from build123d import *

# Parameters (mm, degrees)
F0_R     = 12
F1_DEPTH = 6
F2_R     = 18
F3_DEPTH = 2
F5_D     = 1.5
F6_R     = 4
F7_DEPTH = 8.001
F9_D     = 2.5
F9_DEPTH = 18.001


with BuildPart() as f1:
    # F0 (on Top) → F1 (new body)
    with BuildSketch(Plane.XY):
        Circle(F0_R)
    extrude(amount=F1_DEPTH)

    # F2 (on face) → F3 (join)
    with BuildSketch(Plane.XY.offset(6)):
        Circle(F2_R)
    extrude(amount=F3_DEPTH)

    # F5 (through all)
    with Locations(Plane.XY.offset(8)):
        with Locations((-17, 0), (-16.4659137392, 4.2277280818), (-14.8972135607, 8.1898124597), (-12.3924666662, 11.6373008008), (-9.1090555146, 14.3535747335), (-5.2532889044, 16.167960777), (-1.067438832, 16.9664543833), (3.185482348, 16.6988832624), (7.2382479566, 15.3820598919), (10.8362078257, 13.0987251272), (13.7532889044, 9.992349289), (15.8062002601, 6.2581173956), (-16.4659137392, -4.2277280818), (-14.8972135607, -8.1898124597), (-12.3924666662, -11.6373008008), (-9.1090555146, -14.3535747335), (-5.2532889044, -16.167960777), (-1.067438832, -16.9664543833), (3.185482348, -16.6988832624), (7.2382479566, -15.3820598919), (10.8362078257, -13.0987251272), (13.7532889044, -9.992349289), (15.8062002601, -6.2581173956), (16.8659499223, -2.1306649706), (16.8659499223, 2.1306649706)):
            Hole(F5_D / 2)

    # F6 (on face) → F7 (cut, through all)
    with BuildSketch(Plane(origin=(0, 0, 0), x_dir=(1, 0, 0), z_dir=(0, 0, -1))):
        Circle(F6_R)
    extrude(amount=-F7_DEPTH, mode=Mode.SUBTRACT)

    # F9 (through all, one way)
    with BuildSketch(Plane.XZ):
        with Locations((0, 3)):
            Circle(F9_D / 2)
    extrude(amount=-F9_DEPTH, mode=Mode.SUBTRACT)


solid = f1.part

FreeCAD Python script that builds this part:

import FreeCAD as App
import Part
import Sketcher

V = App.Vector
Q = App.Units.Quantity

doc = App.newDocument("Part")
params = doc.addObject("Spreadsheet::Sheet", "Params")
for row, (alias, value) in enumerate([
    ("sketch1_diameter", "24 mm"),
    ("pad1_length", "6 mm"),
    ("sketch2_diameter", "36 mm"),
    ("pad2_length", "2 mm"),
    ("sketch3_diameter", "1.5 mm"),
    ("hole_diameter", "1.5 mm"),
    ("sketch4_diameter", "8 mm"),
    ("sketch5_diameter", "2.5 mm"),
], start=1):
    params.set(f"A{row}", alias)
    params.set(f"B{row}", "=" + value)
    params.setAlias(f"B{row}", alias)

body = doc.addObject("PartDesign::Body", "Body")

sketch1 = body.newObject("Sketcher::SketchObject", "Sketch")
sketch1.AttachmentSupport = (doc.getObject("XY_Plane"), [""])
sketch1.MapMode = "FlatFace"
sketch1.addGeometry(Part.Circle(V(0, 0, 0), V(0, 0, 1), 12), False)
sketch1.addConstraint([
    Sketcher.Constraint("Coincident", 0, 3, -1, 1),
    Sketcher.Constraint("Diameter", 0, Q("24 mm")),
])
sketch1.setExpression("Constraints[1]", "Params.sketch1_diameter")
pad1 = body.newObject("PartDesign::Pad", "Pad")
pad1.Profile = sketch1
pad1.setExpression("Length", "Params.pad1_length")

sketch2 = body.newObject("Sketcher::SketchObject", "Sketch001")
sketch2.AttachmentSupport = (doc.getObject("XY_Plane"), [""])
sketch2.MapMode = "FlatFace"
sketch2.AttachmentOffset = App.Placement(V(0, 0, 6), App.Rotation())
sketch2.addGeometry(Part.Circle(V(0, 0, 0), V(0, 0, 1), 18), False)
sketch2.addConstraint([
    Sketcher.Constraint("Coincident", 0, 3, -1, 1),
    Sketcher.Constraint("Diameter", 0, Q("36 mm")),
])
sketch2.setExpression("Constraints[1]", "Params.sketch2_diameter")
pad2 = body.newObject("PartDesign::Pad", "Pad001")
pad2.Profile = sketch2
pad2.setExpression("Length", "Params.pad2_length")

sketch3 = body.newObject("Sketcher::SketchObject", "Sketch002")
sketch3.AttachmentSupport = (doc.getObject("XY_Plane"), [""])
sketch3.MapMode = "FlatFace"
sketch3.AttachmentOffset = App.Placement(V(0, 0, 8), App.Rotation())
sketch3.addGeometry([
    Part.Circle(V(-17, 0, 0), V(0, 0, 1), 0.75),
    Part.Circle(V(-16.465914, 4.227728, 0), V(0, 0, 1), 0.75),
    Part.Circle(V(-14.897214, 8.189812, 0), V(0, 0, 1), 0.75),
    Part.Circle(V(-12.392467, 11.637301, 0), V(0, 0, 1), 0.75),
    Part.Circle(V(-9.109056, 14.353575, 0), V(0, 0, 1), 0.75),
    Part.Circle(V(-5.253289, 16.167961, 0), V(0, 0, 1), 0.75),
    Part.Circle(V(-1.067439, 16.966454, 0), V(0, 0, 1), 0.75),
    Part.Circle(V(3.185482, 16.698883, 0), V(0, 0, 1), 0.75),
    Part.Circle(V(7.238248, 15.38206, 0), V(0, 0, 1), 0.75),
    Part.Circle(V(10.836208, 13.098725, 0), V(0, 0, 1), 0.75),
    Part.Circle(V(13.753289, 9.992349, 0), V(0, 0, 1), 0.75),
    Part.Circle(V(15.8062, 6.258117, 0), V(0, 0, 1), 0.75),
    Part.Circle(V(-16.465914, -4.227728, 0), V(0, 0, 1), 0.75),
    Part.Circle(V(-14.897214, -8.189812, 0), V(0, 0, 1), 0.75),
    Part.Circle(V(-12.392467, -11.637301, 0), V(0, 0, 1), 0.75),
    Part.Circle(V(-9.109056, -14.353575, 0), V(0, 0, 1), 0.75),
    Part.Circle(V(-5.253289, -16.167961, 0), V(0, 0, 1), 0.75),
    Part.Circle(V(-1.067439, -16.966454, 0), V(0, 0, 1), 0.75),
    Part.Circle(V(3.185482, -16.698883, 0), V(0, 0, 1), 0.75),
    Part.Circle(V(7.238248, -15.38206, 0), V(0, 0, 1), 0.75),
    Part.Circle(V(10.836208, -13.098725, 0), V(0, 0, 1), 0.75),
    Part.Circle(V(13.753289, -9.992349, 0), V(0, 0, 1), 0.75),
    Part.Circle(V(15.8062, -6.258117, 0), V(0, 0, 1), 0.75),
    Part.Circle(V(16.86595, -2.130665, 0), V(0, 0, 1), 0.75),
    Part.Circle(V(16.86595, 2.130665, 0), V(0, 0, 1), 0.75),
], False)
sketch3.addConstraint([
    Sketcher.Constraint("Equal", 0, 1),
    Sketcher.Constraint("Equal", 1, 2),
    Sketcher.Constraint("Equal", 2, 3),
    Sketcher.Constraint("Equal", 3, 4),
    Sketcher.Constraint("Equal", 4, 5),
    Sketcher.Constraint("Equal", 5, 6),
    Sketcher.Constraint("Equal", 6, 7),
    Sketcher.Constraint("Equal", 7, 8),
    Sketcher.Constraint("Equal", 8, 9),
    Sketcher.Constraint("Equal", 9, 10),
    Sketcher.Constraint("Equal", 10, 11),
    Sketcher.Constraint("Equal", 11, 12),
    Sketcher.Constraint("Equal", 12, 13),
    Sketcher.Constraint("Equal", 13, 14),
    Sketcher.Constraint("Equal", 14, 15),
    Sketcher.Constraint("Equal", 15, 16),
    Sketcher.Constraint("Equal", 16, 17),
    Sketcher.Constraint("Equal", 17, 18),
    Sketcher.Constraint("Equal", 18, 19),
    Sketcher.Constraint("Equal", 19, 20),
    Sketcher.Constraint("Equal", 20, 21),
    Sketcher.Constraint("Equal", 21, 22),
    Sketcher.Constraint("Equal", 22, 23),
    Sketcher.Constraint("Equal", 23, 24),
    Sketcher.Constraint("Symmetric", 1, 3, 12, 3, -1),
    Sketcher.Constraint("Symmetric", 2, 3, 13, 3, -1),
    Sketcher.Constraint("Symmetric", 3, 3, 14, 3, -1),
    Sketcher.Constraint("Symmetric", 4, 3, 15, 3, -1),
    Sketcher.Constraint("Symmetric", 5, 3, 16, 3, -1),
    Sketcher.Constraint("Symmetric", 6, 3, 17, 3, -1),
    Sketcher.Constraint("Symmetric", 7, 3, 18, 3, -1),
    Sketcher.Constraint("Symmetric", 8, 3, 19, 3, -1),
    Sketcher.Constraint("Symmetric", 9, 3, 20, 3, -1),
    Sketcher.Constraint("Symmetric", 10, 3, 21, 3, -1),
    Sketcher.Constraint("Symmetric", 11, 3, 22, 3, -1),
    Sketcher.Constraint("Symmetric", 23, 3, 24, 3, -1),
    Sketcher.Constraint("PointOnObject", 0, 3, -1),
    Sketcher.Constraint("Diameter", 0, Q("1.5 mm")),
    Sketcher.Constraint("DistanceX", 0, 3, -1, 1, Q("17 mm")),
    Sketcher.Constraint("DistanceY", -1, 1, 3, 3, Q("11.637301 mm")),
    Sketcher.Constraint("DistanceX", -1, 1, 11, 3, Q("15.8062 mm")),
    Sketcher.Constraint("DistanceX", 1, 3, 2, 3, Q("1.5687 mm")),
    Sketcher.Constraint("DistanceY", 8, 3, 5, 3, Q("0.785901 mm")),
    Sketcher.Constraint("DistanceY", -1, 1, 1, 3, Q("4.227728 mm")),
    Sketcher.Constraint("DistanceX", 5, 3, -1, 1, Q("5.253289 mm")),
    Sketcher.Constraint("DistanceY", -1, 1, 5, 3, Q("16.167961 mm")),
    Sketcher.Constraint("DistanceX", 6, 3, -1, 1, Q("1.067439 mm")),
    Sketcher.Constraint("DistanceX", -1, 1, 10, 3, Q("13.753289 mm")),
    Sketcher.Constraint("DistanceY", -1, 1, 10, 3, Q("9.992349 mm")),
    Sketcher.Constraint("DistanceX", -1, 1, 23, 3, Q("16.86595 mm")),
    Sketcher.Constraint("DistanceY", 2, 3, 3, 3, Q("3.447488 mm")),
    Sketcher.Constraint("DistanceX", 3, 3, 4, 3, Q("3.283411 mm")),
    Sketcher.Constraint("DistanceX", 2, 3, 4, 3, Q("5.788158 mm")),
    Sketcher.Constraint("DistanceY", 4, 3, 6, 3, Q("2.61288 mm")),
    Sketcher.Constraint("DistanceY", 2, 3, 6, 3, Q("8.776642 mm")),
    Sketcher.Constraint("DistanceX", 6, 3, 7, 3, Q("4.252921 mm")),
    Sketcher.Constraint("DistanceY", 7, 3, 6, 3, Q("0.267571 mm")),
    Sketcher.Constraint("DistanceX", 3, 3, 7, 3, Q("15.577949 mm")),
    Sketcher.Constraint("DistanceX", 8, 3, 9, 3, Q("3.59796 mm")),
    Sketcher.Constraint("DistanceY", 9, 3, 7, 3, Q("3.600158 mm")),
    Sketcher.Constraint("DistanceX", 9, 3, 10, 3, Q("2.917081 mm")),
    Sketcher.Constraint("DistanceY", 11, 3, 10, 3, Q("3.734232 mm")),
    Sketcher.Constraint("DistanceY", 20, 3, 23, 3, Q("10.96806 mm")),
])
sketch3.setExpression("Constraints[37]", "Params.sketch3_diameter")
doc.recompute()
hole = body.newObject("PartDesign::Hole", "Hole")
hole.Profile = sketch3
hole.ThreadType = "None"
hole.setExpression("Diameter", "Params.hole_diameter")
hole.DepthType = "ThroughAll"

sketch4 = body.newObject("Sketcher::SketchObject", "Sketch003")
sketch4.AttachmentSupport = (doc.getObject("XY_Plane"), [""])
sketch4.MapMode = "FlatFace"
sketch4.addGeometry(Part.Circle(V(0, 0, 0), V(0, 0, 1), 4), False)
sketch4.addConstraint([
    Sketcher.Constraint("Coincident", 0, 3, -1, 1),
    Sketcher.Constraint("Diameter", 0, Q("8 mm")),
])
sketch4.setExpression("Constraints[1]", "Params.sketch4_diameter")
pocket1 = body.newObject("PartDesign::Pocket", "Pocket")
pocket1.Profile = sketch4
pocket1.Type = "ThroughAll"
pocket1.Reversed = True

sketch5 = body.newObject("Sketcher::SketchObject", "Sketch004")
sketch5.AttachmentSupport = (doc.getObject("XZ_Plane"), [""])
sketch5.MapMode = "FlatFace"
sketch5.addGeometry(Part.Circle(V(0, 3, 0), V(0, 0, 1), 1.25), False)
sketch5.addConstraint([
    Sketcher.Constraint("PointOnObject", 0, 3, -2),
    Sketcher.Constraint("Diameter", 0, Q("2.5 mm")),
    Sketcher.Constraint("DistanceY", -1, 1, 0, 3, Q("3 mm")),
])
sketch5.setExpression("Constraints[1]", "Params.sketch5_diameter")
pocket2 = body.newObject("PartDesign::Pocket", "Pocket001")
pocket2.Profile = sketch5
pocket2.Type = "ThroughAll"

doc.recompute()
